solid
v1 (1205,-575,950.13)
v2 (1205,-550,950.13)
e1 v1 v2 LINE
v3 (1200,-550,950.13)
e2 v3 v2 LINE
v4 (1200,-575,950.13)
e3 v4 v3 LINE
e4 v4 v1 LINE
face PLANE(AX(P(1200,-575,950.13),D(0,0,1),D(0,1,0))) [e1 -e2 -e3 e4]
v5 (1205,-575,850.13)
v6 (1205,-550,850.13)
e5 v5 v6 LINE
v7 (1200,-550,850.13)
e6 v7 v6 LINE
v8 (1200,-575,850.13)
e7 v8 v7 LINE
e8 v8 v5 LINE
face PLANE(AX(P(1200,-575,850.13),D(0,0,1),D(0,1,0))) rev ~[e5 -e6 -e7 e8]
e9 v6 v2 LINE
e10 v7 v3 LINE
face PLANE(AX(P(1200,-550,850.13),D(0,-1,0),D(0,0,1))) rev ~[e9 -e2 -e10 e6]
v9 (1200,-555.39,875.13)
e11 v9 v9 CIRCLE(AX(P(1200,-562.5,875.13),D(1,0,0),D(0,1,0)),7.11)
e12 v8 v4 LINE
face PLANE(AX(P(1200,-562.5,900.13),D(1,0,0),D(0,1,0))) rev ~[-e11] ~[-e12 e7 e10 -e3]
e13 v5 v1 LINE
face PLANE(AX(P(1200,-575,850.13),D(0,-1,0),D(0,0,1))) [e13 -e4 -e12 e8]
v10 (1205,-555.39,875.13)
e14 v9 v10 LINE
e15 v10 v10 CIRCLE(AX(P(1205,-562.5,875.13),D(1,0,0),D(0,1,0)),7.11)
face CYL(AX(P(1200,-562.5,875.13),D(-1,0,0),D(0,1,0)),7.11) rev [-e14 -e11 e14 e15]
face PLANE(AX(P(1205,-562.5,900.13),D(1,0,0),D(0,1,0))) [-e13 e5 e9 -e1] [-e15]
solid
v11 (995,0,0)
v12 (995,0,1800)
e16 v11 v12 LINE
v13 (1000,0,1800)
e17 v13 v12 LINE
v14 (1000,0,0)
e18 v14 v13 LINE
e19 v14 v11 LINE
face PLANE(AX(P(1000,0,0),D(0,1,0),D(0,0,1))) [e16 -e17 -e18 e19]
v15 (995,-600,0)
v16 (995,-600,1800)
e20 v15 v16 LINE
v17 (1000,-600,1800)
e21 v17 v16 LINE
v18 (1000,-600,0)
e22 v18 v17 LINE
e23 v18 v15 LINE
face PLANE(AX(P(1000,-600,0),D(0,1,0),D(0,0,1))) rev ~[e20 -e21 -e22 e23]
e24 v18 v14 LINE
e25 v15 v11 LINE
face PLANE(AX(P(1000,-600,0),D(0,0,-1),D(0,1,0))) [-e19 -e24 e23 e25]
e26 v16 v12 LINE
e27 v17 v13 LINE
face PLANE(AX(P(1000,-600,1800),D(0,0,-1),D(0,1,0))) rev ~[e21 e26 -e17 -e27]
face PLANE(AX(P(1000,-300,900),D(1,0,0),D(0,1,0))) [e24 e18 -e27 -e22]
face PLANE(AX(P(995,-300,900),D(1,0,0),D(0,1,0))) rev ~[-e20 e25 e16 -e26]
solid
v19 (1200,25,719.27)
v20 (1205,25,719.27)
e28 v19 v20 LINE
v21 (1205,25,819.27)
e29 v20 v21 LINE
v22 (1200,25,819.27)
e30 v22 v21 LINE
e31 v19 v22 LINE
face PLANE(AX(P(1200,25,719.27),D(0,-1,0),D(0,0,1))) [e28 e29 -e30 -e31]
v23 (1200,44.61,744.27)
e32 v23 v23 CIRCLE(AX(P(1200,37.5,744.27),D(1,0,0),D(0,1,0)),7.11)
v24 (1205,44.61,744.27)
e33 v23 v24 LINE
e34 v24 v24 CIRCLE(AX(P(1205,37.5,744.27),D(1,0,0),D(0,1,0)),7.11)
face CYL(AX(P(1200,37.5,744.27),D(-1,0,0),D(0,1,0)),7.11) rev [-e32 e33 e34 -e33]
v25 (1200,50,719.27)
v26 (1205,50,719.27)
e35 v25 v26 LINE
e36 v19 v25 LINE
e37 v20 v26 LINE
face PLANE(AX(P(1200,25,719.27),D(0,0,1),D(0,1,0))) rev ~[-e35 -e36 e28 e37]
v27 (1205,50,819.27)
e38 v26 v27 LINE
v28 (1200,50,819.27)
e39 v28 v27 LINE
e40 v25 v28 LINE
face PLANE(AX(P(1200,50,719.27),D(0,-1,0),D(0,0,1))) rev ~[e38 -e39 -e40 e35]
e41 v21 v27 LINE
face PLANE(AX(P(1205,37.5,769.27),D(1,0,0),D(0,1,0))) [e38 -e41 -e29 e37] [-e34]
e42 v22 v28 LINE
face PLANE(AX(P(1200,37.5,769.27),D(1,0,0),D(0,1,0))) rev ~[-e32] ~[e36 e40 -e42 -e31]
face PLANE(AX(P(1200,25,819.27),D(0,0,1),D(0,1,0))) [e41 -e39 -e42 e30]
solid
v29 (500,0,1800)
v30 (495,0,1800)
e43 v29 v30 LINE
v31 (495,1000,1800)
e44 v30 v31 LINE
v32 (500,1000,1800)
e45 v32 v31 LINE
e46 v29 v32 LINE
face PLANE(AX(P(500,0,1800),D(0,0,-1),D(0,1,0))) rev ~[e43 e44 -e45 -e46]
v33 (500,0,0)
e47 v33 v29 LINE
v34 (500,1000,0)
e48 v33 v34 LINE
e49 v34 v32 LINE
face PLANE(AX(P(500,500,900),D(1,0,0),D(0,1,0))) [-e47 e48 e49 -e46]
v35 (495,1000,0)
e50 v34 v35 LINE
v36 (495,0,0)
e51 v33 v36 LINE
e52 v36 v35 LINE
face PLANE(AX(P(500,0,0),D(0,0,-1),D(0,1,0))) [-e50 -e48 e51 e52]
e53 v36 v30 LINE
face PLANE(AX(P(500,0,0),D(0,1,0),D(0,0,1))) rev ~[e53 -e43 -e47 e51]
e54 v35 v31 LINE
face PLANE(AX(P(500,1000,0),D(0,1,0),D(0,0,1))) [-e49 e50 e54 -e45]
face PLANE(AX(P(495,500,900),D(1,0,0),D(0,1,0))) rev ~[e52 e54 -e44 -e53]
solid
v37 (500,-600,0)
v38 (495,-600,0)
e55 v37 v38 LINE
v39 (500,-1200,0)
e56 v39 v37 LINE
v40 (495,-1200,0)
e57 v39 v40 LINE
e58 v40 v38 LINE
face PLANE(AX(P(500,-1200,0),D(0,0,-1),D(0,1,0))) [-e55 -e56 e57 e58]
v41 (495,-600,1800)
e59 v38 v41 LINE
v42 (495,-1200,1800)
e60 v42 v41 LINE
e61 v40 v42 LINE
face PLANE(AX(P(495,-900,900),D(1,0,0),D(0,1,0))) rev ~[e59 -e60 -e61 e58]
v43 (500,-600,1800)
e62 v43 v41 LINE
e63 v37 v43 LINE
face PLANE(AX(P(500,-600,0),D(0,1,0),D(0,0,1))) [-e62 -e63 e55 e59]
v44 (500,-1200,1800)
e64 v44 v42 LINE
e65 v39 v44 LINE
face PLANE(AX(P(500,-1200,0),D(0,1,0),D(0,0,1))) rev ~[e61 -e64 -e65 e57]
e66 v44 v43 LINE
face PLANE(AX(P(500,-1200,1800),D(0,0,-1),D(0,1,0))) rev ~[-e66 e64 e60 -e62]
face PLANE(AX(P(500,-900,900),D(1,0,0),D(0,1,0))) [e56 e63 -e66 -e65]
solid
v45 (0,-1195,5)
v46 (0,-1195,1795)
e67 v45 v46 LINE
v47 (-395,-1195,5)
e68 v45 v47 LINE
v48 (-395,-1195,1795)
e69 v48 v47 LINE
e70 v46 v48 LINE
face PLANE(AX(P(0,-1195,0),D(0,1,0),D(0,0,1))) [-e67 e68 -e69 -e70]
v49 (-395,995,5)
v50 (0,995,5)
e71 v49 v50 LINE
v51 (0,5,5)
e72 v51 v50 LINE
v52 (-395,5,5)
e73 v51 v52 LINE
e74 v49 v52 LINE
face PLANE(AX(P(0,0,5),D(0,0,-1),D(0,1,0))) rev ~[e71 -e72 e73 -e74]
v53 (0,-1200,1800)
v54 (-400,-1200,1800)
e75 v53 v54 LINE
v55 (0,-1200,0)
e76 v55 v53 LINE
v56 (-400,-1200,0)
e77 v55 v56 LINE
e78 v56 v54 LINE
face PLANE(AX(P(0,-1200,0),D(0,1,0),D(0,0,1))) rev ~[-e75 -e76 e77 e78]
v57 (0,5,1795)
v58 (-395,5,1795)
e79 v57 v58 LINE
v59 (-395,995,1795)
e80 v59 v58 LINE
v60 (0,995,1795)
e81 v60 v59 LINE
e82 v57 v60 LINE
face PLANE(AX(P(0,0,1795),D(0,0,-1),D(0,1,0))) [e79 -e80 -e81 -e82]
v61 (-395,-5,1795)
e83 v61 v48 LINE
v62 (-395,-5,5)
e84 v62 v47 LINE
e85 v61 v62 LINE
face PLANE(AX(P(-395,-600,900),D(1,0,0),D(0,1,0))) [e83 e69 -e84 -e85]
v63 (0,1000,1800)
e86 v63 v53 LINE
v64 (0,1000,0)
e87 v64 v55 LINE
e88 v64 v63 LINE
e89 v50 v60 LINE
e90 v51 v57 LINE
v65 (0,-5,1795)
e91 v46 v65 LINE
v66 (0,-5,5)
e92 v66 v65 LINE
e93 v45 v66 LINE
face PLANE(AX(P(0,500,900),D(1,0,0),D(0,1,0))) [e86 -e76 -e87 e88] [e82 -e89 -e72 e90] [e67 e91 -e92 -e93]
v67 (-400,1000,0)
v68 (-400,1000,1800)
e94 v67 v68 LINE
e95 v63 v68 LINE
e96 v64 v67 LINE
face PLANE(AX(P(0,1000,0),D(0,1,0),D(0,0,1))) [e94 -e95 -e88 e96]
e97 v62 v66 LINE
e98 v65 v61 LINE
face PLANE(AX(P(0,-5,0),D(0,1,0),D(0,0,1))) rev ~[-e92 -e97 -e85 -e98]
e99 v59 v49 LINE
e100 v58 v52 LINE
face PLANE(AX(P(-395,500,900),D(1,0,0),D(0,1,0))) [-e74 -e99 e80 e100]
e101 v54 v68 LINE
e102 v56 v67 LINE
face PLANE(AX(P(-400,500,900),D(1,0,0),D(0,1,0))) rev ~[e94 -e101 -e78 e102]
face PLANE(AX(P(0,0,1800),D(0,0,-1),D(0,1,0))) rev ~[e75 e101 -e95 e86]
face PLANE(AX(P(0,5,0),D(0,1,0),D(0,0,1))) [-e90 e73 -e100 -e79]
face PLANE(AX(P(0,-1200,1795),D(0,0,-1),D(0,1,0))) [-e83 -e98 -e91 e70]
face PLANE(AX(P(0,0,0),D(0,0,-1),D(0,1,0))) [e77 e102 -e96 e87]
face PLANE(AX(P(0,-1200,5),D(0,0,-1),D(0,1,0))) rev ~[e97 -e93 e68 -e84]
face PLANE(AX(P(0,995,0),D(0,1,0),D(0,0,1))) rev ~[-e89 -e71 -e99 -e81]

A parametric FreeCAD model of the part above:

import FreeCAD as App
import Part
import Sketcher
from FreeCAD import Vector
Q = App.Units.Quantity


def faces_at(feature, points):
    """Names of the faces that lie closest to the given points."""
    faces = feature.Shape.Faces
    near = lambda p: min(range(len(faces)), key=lambda i: faces[i].distToShape(Part.Vertex(*p))[0])
    return sorted({f"Face{near(p) + 1}" for p in points})

doc = App.newDocument("Part")
body = doc.addObject("PartDesign::Body", "Body")

# Sketch on YZ plane
sketch1 = body.newObject("Sketcher::SketchObject", "Sketch")
sketch1.AttachmentSupport = (doc.getObject("YZ_Plane"), [""])
sketch1.MapMode = "FlatFace"
sketch1.addGeometry([
    Part.LineSegment(Vector(-1200, 1800, 0), Vector(-1200, 0, 0)),
    Part.LineSegment(Vector(-1200, 0, 0), Vector(0, 0, 0)),
    Part.LineSegment(Vector(0, 0, 0), Vector(0, 1800, 0)),
    Part.LineSegment(Vector(0, 1800, 0), Vector(-1200, 1800, 0)),
], False)
sketch1.addConstraint([
    Sketcher.Constraint("Coincident", 0, 2, 1, 1),
    Sketcher.Constraint("Coincident", 1, 2, 2, 1),
    Sketcher.Constraint("Coincident", 2, 2, 3, 1),
    Sketcher.Constraint("Coincident", 3, 2, 0, 1),
    Sketcher.Constraint("Vertical", 0),
    Sketcher.Constraint("Horizontal", 1),
    Sketcher.Constraint("Vertical", 2),
    Sketcher.Constraint("Horizontal", 3),
    Sketcher.Constraint("Coincident", 1, 2, -1, 1),
    Sketcher.Constraint("DistanceX", 1, 1, 1, 2, Q("1200 mm")),
    Sketcher.Constraint("DistanceY", 0, 2, 0, 1, Q("1800 mm")),
])
pad1 = body.newObject("PartDesign::Pad", "Pad")
pad1.Profile = sketch1
pad1.Length = 400
pad1.Reversed = True
doc.recompute()

thickness = body.newObject("PartDesign::Thickness", "Thickness")
thickness.Base = (pad1, faces_at(pad1, [(0, -600, 900)]))
thickness.Value = 5
thickness.Reversed = True
thickness.Join = "Arc"
body2 = doc.addObject("PartDesign::Body", "Body001")

# Sketch on YZ plane
sketch2 = body2.newObject("Sketcher::SketchObject", "Sketch001")
sketch2.AttachmentSupport = (doc.getObject("YZ_Plane001"), [""])
sketch2.MapMode = "FlatFace"
sketch2.addGeometry([
    Part.LineSegment(Vector(0, 1800, 0), Vector(0, 0, 0)),
    Part.LineSegment(Vector(0, 0, 0), Vector(1000, 0, 0)),
    Part.LineSegment(Vector(1000, 0, 0), Vector(1000, 1800, 0)),
    Part.LineSegment(Vector(1000, 1800, 0), Vector(0, 1800, 0)),
], False)
sketch2.addConstraint([
    Sketcher.Constraint("Coincident", 0, 2, 1, 1),
    Sketcher.Constraint("Coincident", 1, 2, 2, 1),
    Sketcher.Constraint("Coincident", 2, 2, 3, 1),
    Sketcher.Constraint("Coincident", 3, 2, 0, 1),
    Sketcher.Constraint("Vertical", 0),
    Sketcher.Constraint("Horizontal", 1),
    Sketcher.Constraint("Vertical", 2),
    Sketcher.Constraint("Horizontal", 3),
    Sketcher.Constraint("Coincident", 0, 2, -1, 1),
    Sketcher.Constraint("DistanceX", 1, 1, 1, 2, Q("1000 mm")),
    Sketcher.Constraint("DistanceY", 0, 2, 0, 1, Q("1800 mm")),
])
pad2 = body2.newObject("PartDesign::Pad", "Pad001")
pad2.Profile = sketch2
pad2.Length = 400
pad2.Reversed = True
doc.recompute()

thickness2 = body2.newObject("PartDesign::Thickness", "Thickness001")
thickness2.Base = (pad2, faces_at(pad2, [(0, 500, 900)]))
thickness2.Value = 5
thickness2.Reversed = True
thickness2.Join = "Arc"
doc.recompute()

boolean = body.newObject("PartDesign::Boolean", "Boolean")
boolean.Type = "Fuse"
boolean.addObjects([body2])
body3 = doc.addObject("PartDesign::Body", "Body002")

# Sketch on YZ plane
sketch3 = body3.newObject("Sketcher::SketchObject", "Sketch002")
sketch3.AttachmentSupport = (doc.getObject("YZ_Plane002"), [""])
sketch3.MapMode = "FlatFace"
sketch3.AttachmentOffset = App.Placement(Vector(0, 0, 500), App.Rotation())
sketch3.addGeometry([
    Part.LineSegment(Vector(0, 1800, 0), Vector(0, 0, 0)),
    Part.LineSegment(Vector(0, 0, 0), Vector(1000, 0, 0)),
    Part.LineSegment(Vector(1000, 0, 0), Vector(1000, 1800, 0)),
    Part.LineSegment(Vector(1000, 1800, 0), Vector(0, 1800, 0)),
], False)
sketch3.addConstraint([
    Sketcher.Constraint("Coincident", 0, 2, 1, 1),
    Sketcher.Constraint("Coincident", 1, 2, 2, 1),
    Sketcher.Constraint("Coincident", 2, 2, 3, 1),
    Sketcher.Constraint("Coincident", 3, 2, 0, 1),
    Sketcher.Constraint("Vertical", 0),
    Sketcher.Constraint("Horizontal", 1),
    Sketcher.Constraint("Vertical", 2),
    Sketcher.Constraint("Horizontal", 3),
    Sketcher.Constraint("Coincident", 0, 2, -1, 1),
    Sketcher.Constraint("DistanceX", 1, 1, 1, 2, Q("1000 mm")),
    Sketcher.Constraint("DistanceY", 0, 2, 0, 1, Q("1800 mm")),
])
pad3 = body3.newObject("PartDesign::Pad", "Pad002")
pad3.Profile = sketch3
pad3.Length = 5
pad3.Reversed = True
body4 = doc.addObject("PartDesign::Body", "Body003")

# Sketch on YZ plane
sketch4 = body4.newObject("Sketcher::SketchObject", "Sketch003")
sketch4.AttachmentSupport = (doc.getObject("YZ_Plane003"), [""])
sketch4.MapMode = "FlatFace"
sketch4.AttachmentOffset = App.Placement(Vector(0, 0, 500), App.Rotation())
sketch4.addGeometry([
    Part.LineSegment(Vector(-1200, 1800, 0), Vector(-1200, 0, 0)),
    Part.LineSegment(Vector(-1200, 0, 0), Vector(-600, 0, 0)),
    Part.LineSegment(Vector(-600, 0, 0), Vector(-600, 1800, 0)),
    Part.LineSegment(Vector(-600, 1800, 0), Vector(-1200, 1800, 0)),
], False)
sketch4.addConstraint([
    Sketcher.Constraint("Coincident", 0, 2, 1, 1),
    Sketcher.Constraint("Coincident", 1, 2, 2, 1),
    Sketcher.Constraint("Coincident", 2, 2, 3, 1),
    Sketcher.Constraint("Coincident", 3, 2, 0, 1),
    Sketcher.Constraint("Vertical", 0),
    Sketcher.Constraint("Horizontal", 1),
    Sketcher.Constraint("Vertical", 2),
    Sketcher.Constraint("Horizontal", 3),
    Sketcher.Constraint("PointOnObject", 0, 2, -1),
    Sketcher.Constraint("DistanceX", 1, 1, 1, 2, Q("600 mm")),
    Sketcher.Constraint("DistanceY", 0, 2, 0, 1, Q("1800 mm")),
    Sketcher.Constraint("DistanceX", 0, 2, -1, 1, Q("1200 mm")),
])
pad4 = body4.newObject("PartDesign::Pad", "Pad003")
pad4.Profile = sketch4
pad4.Length = 5
pad4.Reversed = True
body5 = doc.addObject("PartDesign::Body", "Body004")

# Sketch on YZ plane
sketch5 = body5.newObject("Sketcher::SketchObject", "Sketch004")
sketch5.AttachmentSupport = (doc.getObject("YZ_Plane004"), [""])
sketch5.MapMode = "FlatFace"
sketch5.AttachmentOffset = App.Placement(Vector(0, 0, 1000), App.Rotation())
sketch5.addGeometry([
    Part.LineSegment(Vector(-600, 1800, 0), Vector(-600, 0, 0)),
    Part.LineSegment(Vector(-600, 0, 0), Vector(0, 0, 0)),
    Part.LineSegment(Vector(0, 0, 0), Vector(0, 1800, 0)),
    Part.LineSegment(Vector(0, 1800, 0), Vector(-600, 1800, 0)),
], False)
sketch5.addConstraint([
    Sketcher.Constraint("Coincident", 0, 2, 1, 1),
    Sketcher.Constraint("Coincident", 1, 2, 2, 1),
    Sketcher.Constraint("Coincident", 2, 2, 3, 1),
    Sketcher.Constraint("Coincident", 3, 2, 0, 1),
    Sketcher.Constraint("Vertical", 0),
    Sketcher.Constraint("Horizontal", 1),
    Sketcher.Constraint("Vertical", 2),
    Sketcher.Constraint("Horizontal", 3),
    Sketcher.Constraint("Coincident", 1, 2, -1, 1),
    Sketcher.Constraint("DistanceX", 1, 1, 1, 2, Q("600 mm")),
    Sketcher.Constraint("DistanceY", 0, 2, 0, 1, Q("1800 mm")),
])
pad5 = body5.newObject("PartDesign::Pad", "Pad004")
pad5.Profile = sketch5
pad5.Length = 5
pad5.Reversed = True
body6 = doc.addObject("PartDesign::Body", "Body005")

# Sketch on YZ plane
sketch6 = body6.newObject("Sketcher::SketchObject", "Sketch005")
sketch6.AttachmentSupport = (doc.getObject("YZ_Plane005"), [""])
sketch6.MapMode = "FlatFace"
sketch6.AttachmentOffset = App.Placement(Vector(0, 0, 1000), App.Rotation())
sketch6.addGeometry([
    Part.LineSegment(Vector(-575, 950, 0), Vector(-575, 850, 0)),  # 0
    Part.LineSegment(Vector(-575, 850, 0), Vector(-550, 850, 0)),  # 1
    Part.LineSegment(Vector(-550, 850, 0), Vector(-550, 950, 0)),  # 2
    Part.LineSegment(Vector(-550, 950, 0), Vector(-575, 950, 0)),  # 3
    Part.Circle(Vector(-562, 875, 0), Vector(0, 0, 1), 7),  # 4
], False)
sketch6.addConstraint([
    Sketcher.Constraint("Coincident", 0, 2, 1, 1),
    Sketcher.Constraint("Coincident", 1, 2, 2, 1),
    Sketcher.Constraint("Coincident", 2, 2, 3, 1),
    Sketcher.Constraint("Coincident", 3, 2, 0, 1),
    Sketcher.Constraint("Vertical", 0),
    Sketcher.Constraint("Horizontal", 1),
    Sketcher.Constraint("Vertical", 2),
    Sketcher.Constraint("Horizontal", 3),
    Sketcher.Constraint("Diameter", 4, Q("14.22 mm")),
    Sketcher.Constraint("DistanceX", 1, 1, 1, 2, Q("25 mm")),
    Sketcher.Constraint("DistanceY", 0, 2, 0, 1, Q("100 mm")),
    Sketcher.Constraint("DistanceX", 0, 2, -1, 1, Q("575 mm")),
    Sketcher.Constraint("DistanceY", 0, 2, 4, 3, Q("25 mm")),
    Sketcher.Constraint("DistanceX", 4, 3, -1, 1, Q("562.5 mm")),
    Sketcher.Constraint("DistanceY", -1, 1, 4, 3, Q("875.13 mm")),
])
pad6 = body6.newObject("PartDesign::Pad", "Pad005")
pad6.Profile = sketch6
pad6.Length = 5
body7 = doc.addObject("PartDesign::Body", "Body006")

# Sketch on YZ plane
sketch7 = body7.newObject("Sketcher::SketchObject", "Sketch006")
sketch7.AttachmentSupport = (doc.getObject("YZ_Plane006"), [""])
sketch7.MapMode = "FlatFace"
sketch7.AttachmentOffset = App.Placement(Vector(0, 0, 1200), App.Rotation())
sketch7.addGeometry([
    Part.LineSegment(Vector(-575, 950, 0), Vector(-575, 850, 0)),  # 0
    Part.LineSegment(Vector(-575, 850, 0), Vector(-550, 850, 0)),  # 1
    Part.LineSegment(Vector(-550, 850, 0), Vector(-550, 950, 0)),  # 2
    Part.LineSegment(Vector(-550, 950, 0), Vector(-575, 950, 0)),  # 3
    Part.Circle(Vector(-562, 875, 0), Vector(0, 0, 1), 7),  # 4
], False)
sketch7.addConstraint([
    Sketcher.Constraint("Coincident", 0, 2, 1, 1),
    Sketcher.Constraint("Coincident", 1, 2, 2, 1),
    Sketcher.Constraint("Coincident", 2, 2, 3, 1),
    Sketcher.Constraint("Coincident", 3, 2, 0, 1),
    Sketcher.Constraint("Vertical", 0),
    Sketcher.Constraint("Horizontal", 1),
    Sketcher.Constraint("Vertical", 2),
    Sketcher.Constraint("Horizontal", 3),
    Sketcher.Constraint("Diameter", 4, Q("14.22 mm")),
    Sketcher.Constraint("DistanceX", 1, 1, 1, 2, Q("25 mm")),
    Sketcher.Constraint("DistanceY", 0, 2, 0, 1, Q("100 mm")),
    Sketcher.Constraint("DistanceX", 0, 2, -1, 1, Q("575 mm")),
    Sketcher.Constraint("DistanceY", 0, 2, 4, 3, Q("25 mm")),
    Sketcher.Constraint("DistanceX", 4, 3, -1, 1, Q("562.5 mm")),
    Sketcher.Constraint("DistanceY", -1, 1, 4, 3, Q("875.13 mm")),
])
pad7 = body7.newObject("PartDesign::Pad", "Pad006")
pad7.Profile = sketch7
pad7.Length = 5
body8 = doc.addObject("PartDesign::Body", "Body007")

# Sketch on YZ plane
sketch8 = body8.newObject("Sketcher::SketchObject", "Sketch007")
sketch8.AttachmentSupport = (doc.getObject("YZ_Plane007"), [""])
sketch8.MapMode = "FlatFace"
sketch8.AttachmentOffset = App.Placement(Vector(0, 0, 1200), App.Rotation())
sketch8.addGeometry([
    Part.LineSegment(Vector(25, 819, 0), Vector(25, 719, 0)),  # 0
    Part.LineSegment(Vector(25, 719, 0), Vector(50, 719, 0)),  # 1
    Part.LineSegment(Vector(50, 719, 0), Vector(50, 819, 0)),  # 2
    Part.LineSegment(Vector(50, 819, 0), Vector(25, 819, 0)),  # 3
    Part.Circle(Vector(38, 744, 0), Vector(0, 0, 1), 7),  # 4
], False)
sketch8.addConstraint([
    Sketcher.Constraint("Coincident", 0, 2, 1, 1),
    Sketcher.Constraint("Coincident", 1, 2, 2, 1),
    Sketcher.Constraint("Coincident", 2, 2, 3, 1),
    Sketcher.Constraint("Coincident", 3, 2, 0, 1),
    Sketcher.Constraint("Vertical", 0),
    Sketcher.Constraint("Horizontal", 1),
    Sketcher.Constraint("Vertical", 2),
    Sketcher.Constraint("Horizontal", 3),
    Sketcher.Constraint("Diameter", 4, Q("14.22 mm")),
    Sketcher.Constraint("DistanceX", 1, 1, 1, 2, Q("25 mm")),
    Sketcher.Constraint("DistanceY", 0, 2, 0, 1, Q("100 mm")),
    Sketcher.Constraint("DistanceX", -1, 1, 0, 2, Q("25 mm")),
    Sketcher.Constraint("DistanceY", 0, 2, 4, 3, Q("25 mm")),
    Sketcher.Constraint("DistanceX", -1, 1, 4, 3, Q("37.5 mm")),
    Sketcher.Constraint("DistanceY", -1, 1, 4, 3, Q("744.27 mm")),
])
pad8 = body8.newObject("PartDesign::Pad", "Pad007")
pad8.Profile = sketch8
pad8.Length = 5
body6.Visibility = False

doc.recompute()
